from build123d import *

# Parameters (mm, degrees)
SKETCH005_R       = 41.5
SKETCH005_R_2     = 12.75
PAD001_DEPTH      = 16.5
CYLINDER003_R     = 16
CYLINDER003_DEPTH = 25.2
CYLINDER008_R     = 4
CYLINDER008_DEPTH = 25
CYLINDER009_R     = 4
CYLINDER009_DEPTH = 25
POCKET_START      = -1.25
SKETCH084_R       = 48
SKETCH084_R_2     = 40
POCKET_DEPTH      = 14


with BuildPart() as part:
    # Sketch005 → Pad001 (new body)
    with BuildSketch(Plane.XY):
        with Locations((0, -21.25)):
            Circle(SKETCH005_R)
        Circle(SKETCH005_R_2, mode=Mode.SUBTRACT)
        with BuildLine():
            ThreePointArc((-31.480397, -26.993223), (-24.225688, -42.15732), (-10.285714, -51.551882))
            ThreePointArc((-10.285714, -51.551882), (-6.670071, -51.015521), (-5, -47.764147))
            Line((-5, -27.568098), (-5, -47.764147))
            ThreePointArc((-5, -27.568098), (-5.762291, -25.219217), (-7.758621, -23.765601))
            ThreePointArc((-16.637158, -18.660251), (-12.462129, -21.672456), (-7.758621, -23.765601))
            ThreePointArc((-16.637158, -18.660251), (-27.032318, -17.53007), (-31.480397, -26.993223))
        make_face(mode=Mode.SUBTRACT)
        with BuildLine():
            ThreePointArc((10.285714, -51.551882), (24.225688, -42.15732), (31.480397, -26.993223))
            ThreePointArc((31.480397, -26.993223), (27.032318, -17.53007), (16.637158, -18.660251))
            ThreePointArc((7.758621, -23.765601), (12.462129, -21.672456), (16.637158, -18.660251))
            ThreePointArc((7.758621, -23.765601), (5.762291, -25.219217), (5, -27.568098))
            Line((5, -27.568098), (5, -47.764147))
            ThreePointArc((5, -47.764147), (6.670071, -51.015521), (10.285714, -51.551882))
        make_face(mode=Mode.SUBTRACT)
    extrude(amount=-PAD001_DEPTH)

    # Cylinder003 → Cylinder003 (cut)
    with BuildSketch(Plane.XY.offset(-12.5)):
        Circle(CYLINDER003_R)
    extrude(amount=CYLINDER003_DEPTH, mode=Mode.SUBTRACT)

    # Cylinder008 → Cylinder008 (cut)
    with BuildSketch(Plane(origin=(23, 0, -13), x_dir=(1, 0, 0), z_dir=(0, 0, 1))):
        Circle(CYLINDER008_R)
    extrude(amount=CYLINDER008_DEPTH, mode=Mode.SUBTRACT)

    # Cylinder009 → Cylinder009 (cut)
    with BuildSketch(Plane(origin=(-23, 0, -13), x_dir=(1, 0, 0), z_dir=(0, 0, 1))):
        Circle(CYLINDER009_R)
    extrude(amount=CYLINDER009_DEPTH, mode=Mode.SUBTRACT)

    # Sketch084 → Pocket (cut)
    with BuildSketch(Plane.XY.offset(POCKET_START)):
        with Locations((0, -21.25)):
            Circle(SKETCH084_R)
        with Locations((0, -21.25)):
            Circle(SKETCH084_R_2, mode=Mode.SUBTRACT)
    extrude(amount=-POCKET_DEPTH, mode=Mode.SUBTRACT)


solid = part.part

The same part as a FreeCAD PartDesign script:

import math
import FreeCAD as App
import Part
import Sketcher
from FreeCAD import Vector
Q = App.Units.Quantity

doc = App.newDocument("Part")
params = doc.addObject("Spreadsheet::Sheet", "Params")
for row, (alias, value) in enumerate([
    ("sketch1_diameter", "83 mm"),
    ("sketch1_radius", "31.999999 mm"),
    ("sketch1_radius2", "9 mm"),
    ("sketch1_radius3", "4.000001 mm"),
    ("sketch1_radius4", "3.999999 mm"),
    ("pad1_length", "16.5 mm"),
    ("sketch2_diameter", "32 mm"),
    ("pocket1_length", "25.2 mm"),
    ("sketch3_diameter", "8 mm"),
    ("pocket2_length", "25 mm"),
    ("sketch4_diameter", "8 mm"),
    ("pocket3_length", "25 mm"),
    ("sketch5_diameter", "96 mm"),
    ("sketch5_diameter2", "80 mm"),
    ("pocket4_length", "14 mm"),
], start=1):
    params.set(f"A{row}", alias)
    params.set(f"B{row}", "=" + value)
    params.setAlias(f"B{row}", alias)

body = doc.addObject("PartDesign::Body", "Body")

# Sketch on XY plane
sketch1 = body.newObject("Sketcher::SketchObject", "Sketch")
sketch1.AttachmentSupport = (doc.getObject("XY_Plane"), [""])
sketch1.MapMode = "FlatFace"
sketch1.addGeometry(Part.Circle(Vector(0, -21.25, 0), Vector(0, 0, 1), 41.5), False)
sketch1.addGeometry(Part.ArcOfCircle(Part.Circle(Vector(-0.000001, -21.25, 0), Vector(0, 0, 1), 31.999999), math.radians(-169.660776), math.radians(-108.749339)), False)
sketch1.addGeometry(Part.ArcOfCircle(Part.Circle(Vector(-22.626535, -25.377941, 0), Vector(0, 0, 1), 9), math.radians(48.280351), math.radians(190.339226)), False)
sketch1.addGeometry(Part.ArcOfCircle(Part.Circle(Vector(-0.000008, -0.000013, 0), Vector(0, 0, 1), 24.999985), math.radians(-131.719652), math.radians(-108.080006)), False)
sketch1.addGeometry(Part.ArcOfCircle(Part.Circle(Vector(-9.000001, -27.568098, 0), Vector(0, 0, 1), 4.000001), math.radians(0), math.radians(71.919983)), False)
sketch1.addGeometry(Part.LineSegment(Vector(-5, -27.568098, 0), Vector(-5, -47.764147, 0)), False)
sketch1.addGeometry(Part.ArcOfCircle(Part.Circle(Vector(-8.999999, -47.764148, 0), Vector(0, 0, 1), 3.999999), math.radians(-108.749353), math.radians(0.00001)), False)
sketch1.addGeometry(Part.ArcOfCircle(Part.Circle(Vector(0.000001, -21.25, 0), Vector(0, 0, 1), 31.999999), math.radians(-71.250661), math.radians(-10.339224)), False)
sketch1.addGeometry(Part.ArcOfCircle(Part.Circle(Vector(8.999999, -47.764148, 0), Vector(0, 0, 1), 3.999999), math.radians(179.99999), math.radians(288.749353)), False)
sketch1.addGeometry(Part.LineSegment(Vector(5, -47.764147, 0), Vector(5, -27.568098, 0)), False)
sketch1.addGeometry(Part.ArcOfCircle(Part.Circle(Vector(9.000001, -27.568098, 0), Vector(0, 0, 1), 4.000001), math.radians(108.080017), math.radians(180)), False)
sketch1.addGeometry(Part.ArcOfCircle(Part.Circle(Vector(0.000008, -0.000013, 0), Vector(0, 0, 1), 24.999985), math.radians(-71.919994), math.radians(-48.280348)), False)
sketch1.addGeometry(Part.ArcOfCircle(Part.Circle(Vector(22.626535, -25.377941, 0), Vector(0, 0, 1), 9), math.radians(-10.339226), math.radians(131.719649)), False)
sketch1.addGeometry(Part.Circle(Vector(0, 0, 0), Vector(0, 0, 1), 12.75), False)
sketch1.addConstraint(Sketcher.Constraint("Coincident", 1, 1, 2, 2))
sketch1.addConstraint(Sketcher.Constraint("Coincident", 2, 1, 3, 1))
sketch1.addConstraint(Sketcher.Constraint("Coincident", 3, 2, 4, 2))
sketch1.addConstraint(Sketcher.Constraint("Coincident", 4, 1, 5, 1))
sketch1.addConstraint(Sketcher.Constraint("Coincident", 5, 2, 6, 2))
sketch1.addConstraint(Sketcher.Constraint("Coincident", 6, 1, 1, 2))
sketch1.addConstraint(Sketcher.Constraint("Coincident", 7, 1, 8, 2))
sketch1.addConstraint(Sketcher.Constraint("Coincident", 8, 1, 9, 1))
sketch1.addConstraint(Sketcher.Constraint("Coincident", 9, 2, 10, 2))
sketch1.addConstraint(Sketcher.Constraint("Coincident", 10, 1, 11, 1))
sketch1.addConstraint(Sketcher.Constraint("Coincident", 11, 2, 12, 2))
sketch1.addConstraint(Sketcher.Constraint("Coincident", 12, 1, 7, 2))
sketch1.addConstraint(Sketcher.Constraint("Vertical", 5))
sketch1.addConstraint(Sketcher.Constraint("Vertical", 9))
sketch1.addConstraint(Sketcher.Constraint("Coincident", 13, 3, -1, 1))
sketch1.addConstraint(Sketcher.Constraint("Coincident", 1, 3, 0, 3))
sketch1.addConstraint(Sketcher.Constraint("Coincident", 7, 3, 0, 3))
sketch1.addConstraint(Sketcher.Constraint("PointOnObject", 0, 3, -2))
sketch1.addConstraint(Sketcher.Constraint("Diameter", 0, Q("83 mm")))
sketch1.addConstraint(Sketcher.Constraint("Radius", 1, Q("31.999999 mm")))
sketch1.addConstraint(Sketcher.Constraint("Radius", 2, Q("9 mm")))
sketch1.addConstraint(Sketcher.Constraint("Radius", 4, Q("4.000001 mm")))
sketch1.addConstraint(Sketcher.Constraint("Radius", 6, Q("3.999999 mm")))
sketch1.addConstraint(Sketcher.Constraint("Radius", 7, Q("31.999999 mm")))
sketch1.addConstraint(Sketcher.Constraint("Radius", 8, Q("3.999999 mm")))
sketch1.addConstraint(Sketcher.Constraint("Radius", 10, Q("4.000001 mm")))
sketch1.addConstraint(Sketcher.Constraint("Radius", 12, Q("9 mm")))
sketch1.addConstraint(Sketcher.Constraint("Diameter", 13, Q("25.5 mm")))
sketch1.addConstraint(Sketcher.Constraint("DistanceX", 4, 3, -1, 1, Q("9.000001 mm")))
sketch1.addConstraint(Sketcher.Constraint("DistanceX", -1, 1, 8, 3, Q("8.999999 mm")))
sketch1.addConstraint(Sketcher.Constraint("DistanceY", 0, 3, -1, 1, Q("21.25 mm")))
sketch1.addConstraint(Sketcher.Constraint("Radius", 3, Q("24.999985 mm")))
sketch1.addConstraint(Sketcher.Constraint("Radius", 11, Q("24.999985 mm")))
sketch1.addConstraint(Sketcher.Constraint("DistanceY", 5, 2, 5, 1, Q("20.196049 mm")))
sketch1.addConstraint(Sketcher.Constraint("DistanceY", 9, 1, 9, 2, Q("20.196049 mm")))
sketch1.addConstraint(Sketcher.Constraint("DistanceY", 3, 2, -1, 1, Q("23.765601 mm")))
sketch1.addConstraint(Sketcher.Constraint("DistanceY", 10, 1, -1, 1, Q("23.765601 mm")))
sketch1.addConstraint(Sketcher.Constraint("DistanceY", 4, 3, 1, 3, Q("6.318098 mm")))
sketch1.addConstraint(Sketcher.Constraint("DistanceY", 10, 3, 7, 3, Q("6.318098 mm")))
sketch1.addConstraint(Sketcher.Constraint("DistanceY", 4, 1, 1, 3, Q("6.318098 mm")))
sketch1.addConstraint(Sketcher.Constraint("DistanceY", 9, 2, 7, 3, Q("6.318098 mm")))
sketch1.addConstraint(Sketcher.Constraint("DistanceY", 2, 3, -1, 1, Q("25.377941 mm")))
sketch1.addConstraint(Sketcher.Constraint("DistanceY", 12, 3, -1, 1, Q("25.377941 mm")))
sketch1.addConstraint(Sketcher.Constraint("DistanceY", 2, 1, -1, 1, Q("18.660251 mm")))
sketch1.addConstraint(Sketcher.Constraint("DistanceY", 6, 1, -1, 1, Q("51.551882 mm")))
sketch1.addConstraint(Sketcher.Constraint("DistanceY", 11, 2, -1, 1, Q("18.660251 mm")))
sketch1.addConstraint(Sketcher.Constraint("DistanceX", 1, 1, 2, 3, Q("8.853862 mm")))
sketch1.addConstraint(Sketcher.Constraint("DistanceX", 6, 1, 7, 1, Q("20.571428 mm")))
sketch1.addConstraint(Sketcher.Constraint("DistanceX", 12, 3, 12, 1, Q("8.853862 mm")))
sketch1.setExpression("Constraints[18]", "Params.sketch1_diameter")
sketch1.setExpression("Constraints[19]", "Params.sketch1_radius")
sketch1.setExpression("Constraints[20]", "Params.sketch1_radius2")
sketch1.setExpression("Constraints[21]", "Params.sketch1_radius3")
sketch1.setExpression("Constraints[22]", "Params.sketch1_radius4")
pad1 = body.newObject("PartDesign::Pad", "Pad")
pad1.Profile = sketch1
pad1.setExpression("Length", "Params.pad1_length")
pad1.Reversed = True

# Sketch on XY plane
sketch2 = body.newObject("Sketcher::SketchObject", "Sketch001")
sketch2.AttachmentSupport = (doc.getObject("XY_Plane"), [""])
sketch2.MapMode = "FlatFace"
sketch2.AttachmentOffset = App.Placement(Vector(0, 0, -12.5), App.Rotation())
sketch2.addGeometry(Part.Circle(Vector(0, 0, 0), Vector(0, 0, 1), 16), False)
sketch2.addConstraint(Sketcher.Constraint("Coincident", 0, 3, -1, 1))
sketch2.addConstraint(Sketcher.Constraint("Diameter", 0, Q("32 mm")))
sketch2.setExpression("Constraints[1]", "Params.sketch2_diameter")
pocket1 = body.newObject("PartDesign::Pocket", "Pocket")
pocket1.Profile = sketch2
pocket1.setExpression("Length", "Params.pocket1_length")
pocket1.Reversed = True

# Sketch on XY plane
sketch3 = body.newObject("Sketcher::SketchObject", "Sketch002")
sketch3.AttachmentSupport = (doc.getObject("XY_Plane"), [""])
sketch3.MapMode = "FlatFace"
sketch3.AttachmentOffset = App.Placement(Vector(0, 0, -13), App.Rotation())
sketch3.addGeometry(Part.Circle(Vector(23, 0, 0), Vector(0, 0, 1), 4), False)
sketch3.addConstraint(Sketcher.Constraint("PointOnObject", 0, 3, -1))
sketch3.addConstraint(Sketcher.Constraint("Diameter", 0, Q("8 mm")))
sketch3.addConstraint(Sketcher.Constraint("DistanceX", -1, 1, 0, 3, Q("23 mm")))
sketch3.setExpression("Constraints[1]", "Params.sketch3_diameter")
pocket2 = body.newObject("PartDesign::Pocket", "Pocket001")
pocket2.Profile = sketch3
pocket2.setExpression("Length", "Params.pocket2_length")
pocket2.Reversed = True

# Sketch on XY plane
sketch4 = body.newObject("Sketcher::SketchObject", "Sketch003")
sketch4.AttachmentSupport = (doc.getObject("XY_Plane"), [""])
sketch4.MapMode = "FlatFace"
sketch4.AttachmentOffset = App.Placement(Vector(0, 0, -13), App.Rotation())
sketch4.addGeometry(Part.Circle(Vector(-23, 0, 0), Vector(0, 0, 1), 4), False)
sketch4.addConstraint(Sketcher.Constraint("PointOnObject", 0, 3, -1))
sketch4.addConstraint(Sketcher.Constraint("Diameter", 0, Q("8 mm")))
sketch4.addConstraint(Sketcher.Constraint("DistanceX", 0, 3, -1, 1, Q("23 mm")))
sketch4.setExpression("Constraints[1]", "Params.sketch4_diameter")
pocket3 = body.newObject("PartDesign::Pocket", "Pocket002")
pocket3.Profile = sketch4
pocket3.setExpression("Length", "Params.pocket3_length")
pocket3.Reversed = True

# Sketch on XY plane
sketch5 = body.newObject("Sketcher::SketchObject", "Sketch004")
sketch5.AttachmentSupport = (doc.getObject("XY_Plane"), [""])
sketch5.MapMode = "FlatFace"
sketch5.AttachmentOffset = App.Placement(Vector(0, 0, -1.25), App.Rotation())
sketch5.addGeometry(Part.Circle(Vector(0, -21, 0), Vector(0, 0, 1), 48), False)
sketch5.addGeometry(Part.Circle(Vector(0, -21, 0), Vector(0, 0, 1), 40), False)
sketch5.addConstraint(Sketcher.Constraint("Coincident", 1, 3, 0, 3))
sketch5.addConstraint(Sketcher.Constraint("PointOnObject", 0, 3, -2))
sketch5.addConstraint(Sketcher.Constraint("Diameter", 0, Q("96 mm")))
sketch5.addConstraint(Sketcher.Constraint("Diameter", 1, Q("80 mm")))
sketch5.addConstraint(Sketcher.Constraint("DistanceY", 0, 3, -1, 1, Q("21.25 mm")))
sketch5.setExpression("Constraints[2]", "Params.sketch5_diameter")
sketch5.setExpression("Constraints[3]", "Params.sketch5_diameter2")
pocket4 = body.newObject("PartDesign::Pocket", "Pocket003")
pocket4.Profile = sketch5
pocket4.setExpression("Length", "Params.pocket4_length")

doc.recompute()
